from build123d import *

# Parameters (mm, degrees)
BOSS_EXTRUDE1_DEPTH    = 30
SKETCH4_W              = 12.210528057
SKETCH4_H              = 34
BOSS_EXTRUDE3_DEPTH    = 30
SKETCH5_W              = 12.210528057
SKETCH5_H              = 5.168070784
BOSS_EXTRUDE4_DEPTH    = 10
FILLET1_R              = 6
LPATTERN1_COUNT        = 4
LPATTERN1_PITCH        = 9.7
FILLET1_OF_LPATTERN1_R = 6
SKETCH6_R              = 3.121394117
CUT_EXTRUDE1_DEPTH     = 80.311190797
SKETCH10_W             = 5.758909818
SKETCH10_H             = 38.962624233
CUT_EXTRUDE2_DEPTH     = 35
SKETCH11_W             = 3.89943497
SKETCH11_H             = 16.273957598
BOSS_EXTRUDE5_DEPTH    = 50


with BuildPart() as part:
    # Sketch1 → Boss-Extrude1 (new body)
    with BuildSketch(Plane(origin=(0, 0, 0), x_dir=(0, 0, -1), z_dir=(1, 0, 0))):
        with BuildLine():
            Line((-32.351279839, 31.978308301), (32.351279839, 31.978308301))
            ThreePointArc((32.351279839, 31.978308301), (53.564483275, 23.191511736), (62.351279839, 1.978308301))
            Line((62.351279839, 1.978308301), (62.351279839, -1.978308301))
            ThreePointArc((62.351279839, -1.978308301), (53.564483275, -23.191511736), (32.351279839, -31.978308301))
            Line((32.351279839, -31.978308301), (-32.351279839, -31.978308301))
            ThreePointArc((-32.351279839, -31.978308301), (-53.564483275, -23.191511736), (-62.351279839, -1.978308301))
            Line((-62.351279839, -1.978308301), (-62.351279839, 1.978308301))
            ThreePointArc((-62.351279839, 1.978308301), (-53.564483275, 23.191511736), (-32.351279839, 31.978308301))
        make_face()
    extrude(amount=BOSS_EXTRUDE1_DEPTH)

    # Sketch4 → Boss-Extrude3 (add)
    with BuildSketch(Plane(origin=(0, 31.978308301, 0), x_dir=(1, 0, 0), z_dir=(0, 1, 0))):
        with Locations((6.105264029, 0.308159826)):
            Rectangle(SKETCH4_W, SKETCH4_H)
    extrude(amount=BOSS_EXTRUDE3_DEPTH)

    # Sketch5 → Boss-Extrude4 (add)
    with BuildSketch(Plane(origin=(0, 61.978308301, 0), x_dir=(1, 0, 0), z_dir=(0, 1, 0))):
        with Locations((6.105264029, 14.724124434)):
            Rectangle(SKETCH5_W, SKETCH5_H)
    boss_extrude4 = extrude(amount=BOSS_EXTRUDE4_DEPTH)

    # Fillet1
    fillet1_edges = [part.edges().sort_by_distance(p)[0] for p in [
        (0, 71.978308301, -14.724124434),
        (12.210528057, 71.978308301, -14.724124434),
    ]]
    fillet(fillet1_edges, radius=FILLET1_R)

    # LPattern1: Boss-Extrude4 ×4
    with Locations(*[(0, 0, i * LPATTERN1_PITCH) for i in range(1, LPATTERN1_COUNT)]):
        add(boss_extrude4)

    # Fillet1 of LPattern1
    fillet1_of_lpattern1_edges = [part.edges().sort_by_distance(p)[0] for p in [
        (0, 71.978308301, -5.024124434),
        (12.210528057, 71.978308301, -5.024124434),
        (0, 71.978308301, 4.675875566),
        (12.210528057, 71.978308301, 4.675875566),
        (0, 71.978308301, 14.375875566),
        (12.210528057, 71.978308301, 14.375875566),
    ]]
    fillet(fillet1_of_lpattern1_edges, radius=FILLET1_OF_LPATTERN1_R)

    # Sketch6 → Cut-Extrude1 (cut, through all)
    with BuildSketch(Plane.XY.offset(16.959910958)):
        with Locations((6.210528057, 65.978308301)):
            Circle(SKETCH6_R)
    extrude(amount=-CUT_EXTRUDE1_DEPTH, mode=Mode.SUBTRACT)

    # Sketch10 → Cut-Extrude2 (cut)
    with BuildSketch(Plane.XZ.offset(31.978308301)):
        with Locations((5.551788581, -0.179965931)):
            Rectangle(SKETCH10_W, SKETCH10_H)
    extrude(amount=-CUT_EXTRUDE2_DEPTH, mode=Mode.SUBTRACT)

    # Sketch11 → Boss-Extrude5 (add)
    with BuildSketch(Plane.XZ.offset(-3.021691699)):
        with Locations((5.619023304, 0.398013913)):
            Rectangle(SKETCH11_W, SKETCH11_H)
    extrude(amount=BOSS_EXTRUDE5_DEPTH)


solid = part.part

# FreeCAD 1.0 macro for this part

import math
import FreeCAD as App
import Part
import Sketcher
Q = App.Units.Quantity


def edges_at(feature, points):
    """Names of the edges that pass closest to the given points."""
    edges = feature.Shape.Edges
    near = lambda p: min(range(len(edges)), key=lambda i: edges[i].distToShape(Part.Vertex(*p))[0])
    return sorted({f"Edge{near(p) + 1}" for p in points})


def add_polygon(sketch, points):
    """Adds a closed chain of lines whose ends are joined by coincident constraints."""
    first, n = sketch.GeometryCount, len(points)
    for a, b in zip(points, points[1:] + points[:1]):
        sketch.addGeometry(Part.LineSegment(App.Vector(*a, 0), App.Vector(*b, 0)), False)
    for i in range(n):
        sketch.addConstraint(Sketcher.Constraint("Coincident", first + i, 2, first + (i + 1) % n, 1))

doc = App.newDocument("Part")
body = doc.addObject("PartDesign::Body", "Body")

# Sketch on YZ plane
sketch1 = body.newObject("Sketcher::SketchObject", "Sketch")
sketch1.AttachmentSupport = (doc.getObject("YZ_Plane"), [""])
sketch1.MapMode = "FlatFace"
sketch1.addGeometry([
    Part.LineSegment(App.Vector(31.978308, -32.35128, 0), App.Vector(31.978308, 32.35128, 0)),  # 0
    Part.ArcOfCircle(Part.Circle(App.Vector(1.978308, 32.35128, 0), App.Vector(0, 0, 1), 30), math.radians(0), math.radians(90)),  # 1
    Part.LineSegment(App.Vector(1.978308, 62.35128, 0), App.Vector(-1.978308, 62.35128, 0)),  # 2
    Part.ArcOfCircle(Part.Circle(App.Vector(-1.978308, 32.35128, 0), App.Vector(0, 0, 1), 30), math.radians(90), math.radians(180)),  # 3
    Part.LineSegment(App.Vector(-31.978308, 32.35128, 0), App.Vector(-31.978308, -32.35128, 0)),  # 4
    Part.ArcOfCircle(Part.Circle(App.Vector(-1.978308, -32.35128, 0), App.Vector(0, 0, 1), 30), math.radians(180), math.radians(270)),  # 5
    Part.LineSegment(App.Vector(-1.978308, -62.35128, 0), App.Vector(1.978308, -62.35128, 0)),  # 6
    Part.ArcOfCircle(Part.Circle(App.Vector(1.978308, -32.35128, 0), App.Vector(0, 0, 1), 30), math.radians(-90), math.radians(0)),  # 7
], False)
sketch1.addConstraint([
    Sketcher.Constraint("Tangent", 0, 2, 1, 1),
    Sketcher.Constraint("Tangent", 1, 2, 2, 1),
    Sketcher.Constraint("Tangent", 2, 2, 3, 1),
    Sketcher.Constraint("Tangent", 3, 2, 4, 1),
    Sketcher.Constraint("Tangent", 4, 2, 5, 1),
    Sketcher.Constraint("Tangent", 5, 2, 6, 1),
    Sketcher.Constraint("Tangent", 6, 2, 7, 1),
    Sketcher.Constraint("Tangent", 7, 2, 0, 1),
    Sketcher.Constraint("Vertical", 0),
    Sketcher.Constraint("Horizontal", 2),
    Sketcher.Constraint("Vertical", 4),
    Sketcher.Constraint("Horizontal", 6),
    Sketcher.Constraint("Equal", 1, 3),
    Sketcher.Constraint("Equal", 3, 5),
    Sketcher.Constraint("Equal", 5, 7),
    Sketcher.Constraint("Symmetric", 1, 3, 5, 3, -1, 1),
    Sketcher.Constraint("Radius", 1, Q("30 mm")),
    Sketcher.Constraint("DistanceY", 0, 1, 0, 2, Q("64.70256 mm")),
    Sketcher.Constraint("DistanceX", 2, 2, 2, 1, Q("3.956617 mm")),
])
pad1 = body.newObject("PartDesign::Pad", "Pad")
pad1.Profile = sketch1
pad1.Length = 30

# Sketch on XZ plane
sketch2 = body.newObject("Sketcher::SketchObject", "Sketch001")
sketch2.AttachmentSupport = (doc.getObject("XZ_Plane"), [""])
sketch2.MapMode = "FlatFace"
sketch2.AttachmentOffset = App.Placement(App.Vector(0, 0, -31.978308), App.Rotation())
add_polygon(sketch2, [(0, -17.30816), (0, 16.69184), (12.210528, 16.69184), (12.210528, -17.30816)])  # lines 0-3
sketch2.addConstraint([
    Sketcher.Constraint("Vertical", 0),
    Sketcher.Constraint("Horizontal", 1),
    Sketcher.Constraint("Vertical", 2),
    Sketcher.Constraint("Horizontal", 3),
    Sketcher.Constraint("PointOnObject", 0, 2, -2),
    Sketcher.Constraint("DistanceY", 0, 1, 0, 2, Q("34 mm")),
    Sketcher.Constraint("DistanceX", 1, 1, 1, 2, Q("12.210528 mm")),
    Sketcher.Constraint("DistanceY", -1, 1, 0, 2, Q("16.69184 mm")),
])
pad2 = body.newObject("PartDesign::Pad", "Pad001")
pad2.Profile = sketch2
pad2.Length = 30
pad2.Reversed = True

# Sketch on XZ plane
sketch3 = body.newObject("Sketcher::SketchObject", "Sketch002")
sketch3.AttachmentSupport = (doc.getObject("XZ_Plane"), [""])
sketch3.MapMode = "FlatFace"
sketch3.AttachmentOffset = App.Placement(App.Vector(0, 0, -61.978308), App.Rotation())
add_polygon(sketch3, [(0, -17.30816), (0, -12.140089), (12.210528, -12.140089), (12.210528, -17.30816)])  # lines 0-3
sketch3.addConstraint([
    Sketcher.Constraint("Vertical", 0),
    Sketcher.Constraint("Horizontal", 1),
    Sketcher.Constraint("Vertical", 2),
    Sketcher.Constraint("Horizontal", 3),
    Sketcher.Constraint("PointOnObject", 0, 2, -2),
    Sketcher.Constraint("DistanceX", 1, 1, 1, 2, Q("12.210528 mm")),
    Sketcher.Constraint("DistanceY", 0, 1, 0, 2, Q("5.168071 mm")),
    Sketcher.Constraint("DistanceY", 0, 2, -1, 1, Q("12.140089 mm")),
])
pad3 = body.newObject("PartDesign::Pad", "Pad002")
pad3.Profile = sketch3
pad3.Length = 10
pad3.Reversed = True
doc.recompute()

fillet = body.newObject("PartDesign::Fillet", "Fillet")
fillet.Base = (pad3, edges_at(pad3, [(0, 71.978, -14.724), (12.211, 71.978, -14.724)]))
fillet.Radius = 6
doc.recompute()

linearpattern = body.newObject("PartDesign::LinearPattern", "LinearPattern")
linearpattern.Originals = [pad3]
linearpattern.Direction = (doc.getObject("Z_Axis"), [""])
linearpattern.Mode = "offset"
linearpattern.Offset = 9.7
linearpattern.Occurrences = 4
body.Tip = linearpattern
doc.recompute()

fillet2 = body.newObject("PartDesign::Fillet", "Fillet001")
fillet2.Base = (linearpattern, edges_at(linearpattern, [
    (0, 71.978, -5.024),
    (12.211, 71.978, -5.024),
    (0, 71.978, 4.676),
    (12.211, 71.978, 4.676),
    (0, 71.978, 14.376),
    (12.211, 71.978, 14.376),
]))
fillet2.Radius = 6

# Sketch on XY plane
sketch4 = body.newObject("Sketcher::SketchObject", "Sketch003")
sketch4.AttachmentSupport = (doc.getObject("XY_Plane"), [""])
sketch4.MapMode = "FlatFace"
sketch4.AttachmentOffset = App.Placement(App.Vector(0, 0, 16.959911), App.Rotation())
sketch4.addGeometry(Part.Circle(App.Vector(6.210528, 65.978308, 0), App.Vector(0, 0, 1), 3.121394), False)
sketch4.addConstraint([
    Sketcher.Constraint("Diameter", 0, Q("6.242788 mm")),
    Sketcher.Constraint("DistanceX", -1, 1, 0, 3, Q("6.210528 mm")),
    Sketcher.Constraint("DistanceY", -1, 1, 0, 3, Q("65.978308 mm")),
])
pocket1 = body.newObject("PartDesign::Pocket", "Pocket")
pocket1.Profile = sketch4
pocket1.Type = "ThroughAll"

# Sketch on XZ plane
sketch5 = body.newObject("Sketcher::SketchObject", "Sketch004")
sketch5.AttachmentSupport = (doc.getObject("XZ_Plane"), [""])
sketch5.MapMode = "FlatFace"
sketch5.AttachmentOffset = App.Placement(App.Vector(0, 0, 31.978308), App.Rotation())
add_polygon(sketch5, [(2.672334, 19.301346), (2.672334, -19.661278), (8.431243, -19.661278), (8.431243, 19.301346)])  # lines 0-3
sketch5.addConstraint([
    Sketcher.Constraint("Vertical", 0),
    Sketcher.Constraint("Horizontal", 1),
    Sketcher.Constraint("Vertical", 2),
    Sketcher.Constraint("Horizontal", 3),
    Sketcher.Constraint("DistanceX", 1, 1, 1, 2, Q("5.75891 mm")),
    Sketcher.Constraint("DistanceY", 0, 2, 0, 1, Q("38.962624 mm")),
    Sketcher.Constraint("DistanceY", 0, 2, -1, 1, Q("19.661278 mm")),
    Sketcher.Constraint("DistanceX", -1, 1, 0, 2, Q("2.672334 mm")),
])
pocket2 = body.newObject("PartDesign::Pocket", "Pocket001")
pocket2.Profile = sketch5
pocket2.Length = 35

# Sketch on XZ plane
sketch6 = body.newObject("Sketcher::SketchObject", "Sketch005")
sketch6.AttachmentSupport = (doc.getObject("XZ_Plane"), [""])
sketch6.MapMode = "FlatFace"
sketch6.AttachmentOffset = App.Placement(App.Vector(0, 0, -3.021692), App.Rotation())
add_polygon(sketch6, [(3.669306, 8.534993), (3.669306, -7.738965), (7.568741, -7.738965), (7.568741, 8.534993)])  # lines 0-3
sketch6.addConstraint([
    Sketcher.Constraint("Vertical", 0),
    Sketcher.Constraint("Horizontal", 1),
    Sketcher.Constraint("Vertical", 2),
    Sketcher.Constraint("Horizontal", 3),
    Sketcher.Constraint("DistanceX", 1, 1, 1, 2, Q("3.899435 mm")),
    Sketcher.Constraint("DistanceY", 0, 2, 0, 1, Q("16.273958 mm")),
    Sketcher.Constraint("DistanceX", -1, 1, 1, 2, Q("7.568741 mm")),
    Sketcher.Constraint("DistanceY", 0, 2, -1, 1, Q("7.738965 mm")),
])
pad4 = body.newObject("PartDesign::Pad", "Pad003")
pad4.Profile = sketch6
pad4.Length = 50

doc.recompute()
